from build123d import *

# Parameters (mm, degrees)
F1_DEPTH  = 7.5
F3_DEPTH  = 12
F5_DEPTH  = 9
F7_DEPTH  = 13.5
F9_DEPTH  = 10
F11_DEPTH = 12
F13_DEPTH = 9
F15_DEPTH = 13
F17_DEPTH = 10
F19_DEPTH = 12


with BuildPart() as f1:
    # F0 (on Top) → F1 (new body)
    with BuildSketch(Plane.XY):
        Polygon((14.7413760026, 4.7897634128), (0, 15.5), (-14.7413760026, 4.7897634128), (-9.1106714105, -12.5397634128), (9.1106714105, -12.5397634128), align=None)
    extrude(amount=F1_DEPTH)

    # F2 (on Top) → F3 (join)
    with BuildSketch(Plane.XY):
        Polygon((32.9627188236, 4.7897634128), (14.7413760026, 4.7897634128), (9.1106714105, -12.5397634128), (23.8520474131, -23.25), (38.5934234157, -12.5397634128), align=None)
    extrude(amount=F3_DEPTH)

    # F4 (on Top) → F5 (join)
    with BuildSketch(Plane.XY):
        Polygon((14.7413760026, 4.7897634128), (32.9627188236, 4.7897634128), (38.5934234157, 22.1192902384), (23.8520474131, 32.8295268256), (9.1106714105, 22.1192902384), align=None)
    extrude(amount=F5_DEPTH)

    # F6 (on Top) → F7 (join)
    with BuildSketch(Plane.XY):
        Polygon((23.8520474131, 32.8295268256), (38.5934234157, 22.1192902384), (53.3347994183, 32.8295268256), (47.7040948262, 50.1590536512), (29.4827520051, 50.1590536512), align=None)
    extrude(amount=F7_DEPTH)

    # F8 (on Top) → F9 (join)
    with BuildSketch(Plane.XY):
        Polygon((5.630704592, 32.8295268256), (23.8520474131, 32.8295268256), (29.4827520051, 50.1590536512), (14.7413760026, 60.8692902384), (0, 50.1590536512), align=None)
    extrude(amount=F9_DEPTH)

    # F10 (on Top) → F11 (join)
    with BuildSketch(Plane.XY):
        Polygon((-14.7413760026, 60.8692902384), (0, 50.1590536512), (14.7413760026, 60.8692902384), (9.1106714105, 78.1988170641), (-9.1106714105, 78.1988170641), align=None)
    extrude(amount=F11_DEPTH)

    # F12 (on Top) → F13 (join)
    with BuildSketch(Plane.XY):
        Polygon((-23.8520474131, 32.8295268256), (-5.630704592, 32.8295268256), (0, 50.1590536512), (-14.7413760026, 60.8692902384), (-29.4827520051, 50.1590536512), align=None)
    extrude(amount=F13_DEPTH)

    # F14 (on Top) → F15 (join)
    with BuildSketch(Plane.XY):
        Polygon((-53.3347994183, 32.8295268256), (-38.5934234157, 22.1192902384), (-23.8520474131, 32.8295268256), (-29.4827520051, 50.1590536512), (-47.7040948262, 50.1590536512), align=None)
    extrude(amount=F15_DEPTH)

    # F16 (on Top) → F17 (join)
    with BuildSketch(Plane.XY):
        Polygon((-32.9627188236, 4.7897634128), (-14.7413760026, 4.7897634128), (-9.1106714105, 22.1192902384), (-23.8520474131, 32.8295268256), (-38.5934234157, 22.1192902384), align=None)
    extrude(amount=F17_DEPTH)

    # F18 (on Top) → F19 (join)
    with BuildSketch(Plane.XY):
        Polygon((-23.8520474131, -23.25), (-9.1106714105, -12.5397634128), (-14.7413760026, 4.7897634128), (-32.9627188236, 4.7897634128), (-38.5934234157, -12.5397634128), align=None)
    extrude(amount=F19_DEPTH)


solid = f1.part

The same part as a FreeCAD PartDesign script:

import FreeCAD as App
import Part
import Sketcher

V = App.Vector
Q = App.Units.Quantity

doc = App.newDocument("Part")
params = doc.addObject("Spreadsheet::Sheet", "Params")
for row, (alias, value) in enumerate([
    ("pad1_length", "7.5 mm"),
    ("pad2_length", "12 mm"),
    ("pad3_length", "9 mm"),
    ("pad4_length", "13.5 mm"),
    ("pad5_length", "10 mm"),
    ("pad6_length", "12 mm"),
    ("pad7_length", "9 mm"),
    ("pad8_length", "13 mm"),
    ("pad9_length", "10 mm"),
    ("pad10_length", "12 mm"),
], start=1):
    params.set(f"A{row}", alias)
    params.set(f"B{row}", "=" + value)
    params.setAlias(f"B{row}", alias)

body = doc.addObject("PartDesign::Body", "Body")

# Sketch on XY plane
sketch1 = body.newObject("Sketcher::SketchObject", "Sketch")
sketch1.AttachmentSupport = (doc.getObject("XY_Plane"), [""])
sketch1.MapMode = "FlatFace"
sketch1.addGeometry([
    Part.LineSegment(V(14.741376, 4.789763, 0), V(0, 15.5, 0)),  # 0
    Part.LineSegment(V(0, 15.5, 0), V(-14.741376, 4.789763, 0)),  # 1
    Part.LineSegment(V(-14.741376, 4.789763, 0), V(-9.110671, -12.539763, 0)),  # 2
    Part.LineSegment(V(-9.110671, -12.539763, 0), V(9.110671, -12.539763, 0)),  # 3
    Part.LineSegment(V(9.110671, -12.539763, 0), V(14.741376, 4.789763, 0)),  # 4
], False)
sketch1.addConstraint([
    Sketcher.Constraint("Coincident", 0, 2, 1, 1),
    Sketcher.Constraint("Coincident", 1, 2, 2, 1),
    Sketcher.Constraint("Coincident", 2, 2, 3, 1),
    Sketcher.Constraint("Coincident", 3, 2, 4, 1),
    Sketcher.Constraint("Coincident", 4, 2, 0, 1),
    Sketcher.Constraint("Horizontal", 3),
    Sketcher.Constraint("Symmetric", 1, 2, 4, 2, -2),
    Sketcher.Constraint("PointOnObject", 0, 2, -2),
    Sketcher.Constraint("Equal", 1, 2),
    Sketcher.Constraint("Equal", 2, 4),
    Sketcher.Constraint("Angle", 0, Q("144 deg")),
    Sketcher.Constraint("Angle", 2, Q("-72 deg")),
    Sketcher.Constraint("DistanceY", -1, 1, 0, 2, 15.5),
    Sketcher.Constraint("DistanceX", 3, 1, 3, 2, 18.221343),
])
pad1 = body.newObject("PartDesign::Pad", "Pad")
pad1.Profile = sketch1
pad1.setExpression("Length", "Params.pad1_length")

# Sketch on XY plane
sketch2 = body.newObject("Sketcher::SketchObject", "Sketch001")
sketch2.AttachmentSupport = (doc.getObject("XY_Plane"), [""])
sketch2.MapMode = "FlatFace"
sketch2.addGeometry([
    Part.LineSegment(V(32.962719, 4.789763, 0), V(14.741376, 4.789763, 0)),  # 0
    Part.LineSegment(V(14.741376, 4.789763, 0), V(9.110671, -12.539763, 0)),  # 1
    Part.LineSegment(V(9.110671, -12.539763, 0), V(23.852047, -23.25, 0)),  # 2
    Part.LineSegment(V(23.852047, -23.25, 0), V(38.593423, -12.539763, 0)),  # 3
    Part.LineSegment(V(38.593423, -12.539763, 0), V(32.962719, 4.789763, 0)),  # 4
], False)
sketch2.addConstraint([
    Sketcher.Constraint("Coincident", 0, 2, 1, 1),
    Sketcher.Constraint("Coincident", 1, 2, 2, 1),
    Sketcher.Constraint("Coincident", 2, 2, 3, 1),
    Sketcher.Constraint("Coincident", 3, 2, 4, 1),
    Sketcher.Constraint("Coincident", 4, 2, 0, 1),
    Sketcher.Constraint("Horizontal", 0),
    Sketcher.Constraint("Horizontal", 1, 2, 3, 2),
    Sketcher.Constraint("Equal", 1, 2),
    Sketcher.Constraint("Equal", 2, 3),
    Sketcher.Constraint("Equal", 3, 4),
    Sketcher.Constraint("Angle", 1, Q("-108 deg")),
    Sketcher.Constraint("Angle", 2, Q("-36 deg")),
    Sketcher.Constraint("DistanceY", 2, 2, -1, 1, 23.25),
    Sketcher.Constraint("DistanceX", 0, 2, 0, 1, 18.221343),
    Sketcher.Constraint("DistanceX", -1, 1, 1, 2, 9.110671),
])
pad2 = body.newObject("PartDesign::Pad", "Pad001")
pad2.Profile = sketch2
pad2.setExpression("Length", "Params.pad2_length")

# Sketch on XY plane
sketch3 = body.newObject("Sketcher::SketchObject", "Sketch002")
sketch3.AttachmentSupport = (doc.getObject("XY_Plane"), [""])
sketch3.MapMode = "FlatFace"
sketch3.addGeometry([
    Part.LineSegment(V(14.741376, 4.789763, 0), V(32.962719, 4.789763, 0)),  # 0
    Part.LineSegment(V(32.962719, 4.789763, 0), V(38.593423, 22.11929, 0)),  # 1
    Part.LineSegment(V(38.593423, 22.11929, 0), V(23.852047, 32.829527, 0)),  # 2
    Part.LineSegment(V(23.852047, 32.829527, 0), V(9.110671, 22.11929, 0)),  # 3
    Part.LineSegment(V(9.110671, 22.11929, 0), V(14.741376, 4.789763, 0)),  # 4
], False)
sketch3.addConstraint([
    Sketcher.Constraint("Coincident", 0, 2, 1, 1),
    Sketcher.Constraint("Coincident", 1, 2, 2, 1),
    Sketcher.Constraint("Coincident", 2, 2, 3, 1),
    Sketcher.Constraint("Coincident", 3, 2, 4, 1),
    Sketcher.Constraint("Coincident", 4, 2, 0, 1),
    Sketcher.Constraint("Horizontal", 0),
    Sketcher.Constraint("Horizontal", 1, 2, 3, 2),
    Sketcher.Constraint("Equal", 1, 2),
    Sketcher.Constraint("Equal", 2, 3),
    Sketcher.Constraint("Equal", 3, 4),
    Sketcher.Constraint("Angle", 1, Q("72 deg")),
    Sketcher.Constraint("Angle", 2, Q("144 deg")),
    Sketcher.Constraint("DistanceX", 0, 1, 0, 2, 18.221343),
    Sketcher.Constraint("DistanceX", -1, 1, 0, 2, 32.962719),
    Sketcher.Constraint("DistanceY", -1, 1, 1, 2, 22.11929),
])
pad3 = body.newObject("PartDesign::Pad", "Pad002")
pad3.Profile = sketch3
pad3.setExpression("Length", "Params.pad3_length")

# Sketch on XY plane
sketch4 = body.newObject("Sketcher::SketchObject", "Sketch003")
sketch4.AttachmentSupport = (doc.getObject("XY_Plane"), [""])
sketch4.MapMode = "FlatFace"
sketch4.addGeometry([
    Part.LineSegment(V(23.852047, 32.829527, 0), V(38.593423, 22.11929, 0)),  # 0
    Part.LineSegment(V(38.593423, 22.11929, 0), V(53.334799, 32.829527, 0)),  # 1
    Part.LineSegment(V(53.334799, 32.829527, 0), V(47.704095, 50.159054, 0)),  # 2
    Part.LineSegment(V(47.704095, 50.159054, 0), V(29.482752, 50.159054, 0)),  # 3
    Part.LineSegment(V(29.482752, 50.159054, 0), V(23.852047, 32.829527, 0)),  # 4
], False)
sketch4.addConstraint([
    Sketcher.Constraint("Coincident", 0, 2, 1, 1),
    Sketcher.Constraint("Coincident", 1, 2, 2, 1),
    Sketcher.Constraint("Coincident", 2, 2, 3, 1),
    Sketcher.Constraint("Coincident", 3, 2, 4, 1),
    Sketcher.Constraint("Coincident", 4, 2, 0, 1),
    Sketcher.Constraint("Horizontal", 3),
    Sketcher.Constraint("Horizontal", 1, 2, 4, 2),
    Sketcher.Constraint("Equal", 0, 1),
    Sketcher.Constraint("Equal", 1, 2),
    Sketcher.Constraint("Equal", 2, 4),
    Sketcher.Constraint("Angle", 0, Q("-36 deg")),
    Sketcher.Constraint("Angle", 2, Q("108 deg")),
    Sketcher.Constraint("DistanceX", -1, 1, 1, 2, 53.334799),
    Sketcher.Constraint("DistanceX", 3, 2, 3, 1, 18.221343),
    Sketcher.Constraint("DistanceY", -1, 1, 0, 2, 22.11929),
])
pad4 = body.newObject("PartDesign::Pad", "Pad003")
pad4.Profile = sketch4
pad4.setExpression("Length", "Params.pad4_length")

# Sketch on XY plane
sketch5 = body.newObject("Sketcher::SketchObject", "Sketch004")
sketch5.AttachmentSupport = (doc.getObject("XY_Plane"), [""])
sketch5.MapMode = "FlatFace"
sketch5.addGeometry([
    Part.LineSegment(V(5.630705, 32.829527, 0), V(23.852047, 32.829527, 0)),  # 0
    Part.LineSegment(V(23.852047, 32.829527, 0), V(29.482752, 50.159054, 0)),  # 1
    Part.LineSegment(V(29.482752, 50.159054, 0), V(14.741376, 60.86929, 0)),  # 2
    Part.LineSegment(V(14.741376, 60.86929, 0), V(0, 50.159054, 0)),  # 3
    Part.LineSegment(V(0, 50.159054, 0), V(5.630705, 32.829527, 0)),  # 4
], False)
sketch5.addConstraint([
    Sketcher.Constraint("Coincident", 0, 2, 1, 1),
    Sketcher.Constraint("Coincident", 1, 2, 2, 1),
    Sketcher.Constraint("Coincident", 2, 2, 3, 1),
    Sketcher.Constraint("Coincident", 3, 2, 4, 1),
    Sketcher.Constraint("Coincident", 4, 2, 0, 1),
    Sketcher.Constraint("Horizontal", 0),
    Sketcher.Constraint("PointOnObject", 3, 2, -2),
    Sketcher.Constraint("Horizontal", 1, 2, 3, 2),
    Sketcher.Constraint("Equal", 1, 2),
    Sketcher.Constraint("Equal", 2, 3),
    Sketcher.Constraint("Equal", 3, 4),
    Sketcher.Constraint("Angle", 1, Q("72 deg")),
    Sketcher.Constraint("Angle", 2, Q("144 deg")),
    Sketcher.Constraint("DistanceX", 0, 1, 0, 2, 18.221343),
    Sketcher.Constraint("DistanceY", -1, 1, 2, 2, 60.86929),
])
pad5 = body.newObject("PartDesign::Pad", "Pad004")
pad5.Profile = sketch5
pad5.setExpression("Length", "Params.pad5_length")

# Sketch on XY plane
sketch6 = body.newObject("Sketcher::SketchObject", "Sketch005")
sketch6.AttachmentSupport = (doc.getObject("XY_Plane"), [""])
sketch6.MapMode = "FlatFace"
sketch6.addGeometry([
    Part.LineSegment(V(-14.741376, 60.86929, 0), V(0, 50.159054, 0)),  # 0
    Part.LineSegment(V(0, 50.159054, 0), V(14.741376, 60.86929, 0)),  # 1
    Part.LineSegment(V(14.741376, 60.86929, 0), V(9.110671, 78.198817, 0)),  # 2
    Part.LineSegment(V(9.110671, 78.198817, 0), V(-9.110671, 78.198817, 0)),  # 3
    Part.LineSegment(V(-9.110671, 78.198817, 0), V(-14.741376, 60.86929, 0)),  # 4
], False)
sketch6.addConstraint([
    Sketcher.Constraint("Coincident", 0, 2, 1, 1),
    Sketcher.Constraint("Coincident", 1, 2, 2, 1),
    Sketcher.Constraint("Coincident", 2, 2, 3, 1),
    Sketcher.Constraint("Coincident", 3, 2, 4, 1),
    Sketcher.Constraint("Coincident", 4, 2, 0, 1),
    Sketcher.Constraint("Horizontal", 3),
    Sketcher.Constraint("Symmetric", 1, 2, 4, 2, -2),
    Sketcher.Constraint("PointOnObject", 0, 2, -2),
    Sketcher.Constraint("Equal", 1, 2),
    Sketcher.Constraint("Equal", 2, 4),
    Sketcher.Constraint("Angle", 0, Q("-36 deg")),
    Sketcher.Constraint("Angle", 2, Q("108 deg")),
    Sketcher.Constraint("DistanceX", 3, 2, 3, 1, 18.221343),
    Sketcher.Constraint("DistanceY", -1, 1, 1, 2, 60.86929),
])
pad6 = body.newObject("PartDesign::Pad", "Pad005")
pad6.Profile = sketch6
pad6.setExpression("Length", "Params.pad6_length")

# Sketch on XY plane
sketch7 = body.newObject("Sketcher::SketchObject", "Sketch006")
sketch7.AttachmentSupport = (doc.getObject("XY_Plane"), [""])
sketch7.MapMode = "FlatFace"
sketch7.addGeometry([
    Part.LineSegment(V(-23.852047, 32.829527, 0), V(-5.630705, 32.829527, 0)),  # 0
    Part.LineSegment(V(-5.630705, 32.829527, 0), V(0, 50.159054, 0)),  # 1
    Part.LineSegment(V(0, 50.159054, 0), V(-14.741376, 60.86929, 0)),  # 2
    Part.LineSegment(V(-14.741376, 60.86929, 0), V(-29.482752, 50.159054, 0)),  # 3
    Part.LineSegment(V(-29.482752, 50.159054, 0), V(-23.852047, 32.829527, 0)),  # 4
], False)
sketch7.addConstraint([
    Sketcher.Constraint("Coincident", 0, 2, 1, 1),
    Sketcher.Constraint("Coincident", 1, 2, 2, 1),
    Sketcher.Constraint("Coincident", 2, 2, 3, 1),
    Sketcher.Constraint("Coincident", 3, 2, 4, 1),
    Sketcher.Constraint("Coincident", 4, 2, 0, 1),
    Sketcher.Constraint("Horizontal", 0),
    Sketcher.Constraint("PointOnObject", 1, 2, -2),
    Sketcher.Constraint("Horizontal", 1, 2, 3, 2),
    Sketcher.Constraint("Equal", 1, 2),
    Sketcher.Constraint("Equal", 2, 3),
    Sketcher.Constraint("Equal", 3, 4),
    Sketcher.Constraint("Angle", 1, Q("72 deg")),
    Sketcher.Constraint("Angle", 2, Q("144 deg")),
    Sketcher.Constraint("DistanceX", 0, 1, 0, 2, 18.221343),
    Sketcher.Constraint("DistanceY", -1, 1, 2, 2, 60.86929),
])
pad7 = body.newObject("PartDesign::Pad", "Pad006")
pad7.Profile = sketch7
pad7.setExpression("Length", "Params.pad7_length")

# Sketch on XY plane
sketch8 = body.newObject("Sketcher::SketchObject", "Sketch007")
sketch8.AttachmentSupport = (doc.getObject("XY_Plane"), [""])
sketch8.MapMode = "FlatFace"
sketch8.addGeometry([
    Part.LineSegment(V(-53.334799, 32.829527, 0), V(-38.593423, 22.11929, 0)),  # 0
    Part.LineSegment(V(-38.593423, 22.11929, 0), V(-23.852047, 32.829527, 0)),  # 1
    Part.LineSegment(V(-23.852047, 32.829527, 0), V(-29.482752, 50.159054, 0)),  # 2
    Part.LineSegment(V(-29.482752, 50.159054, 0), V(-47.704095, 50.159054, 0)),  # 3
    Part.LineSegment(V(-47.704095, 50.159054, 0), V(-53.334799, 32.829527, 0)),  # 4
], False)
sketch8.addConstraint([
    Sketcher.Constraint("Coincident", 0, 2, 1, 1),
    Sketcher.Constraint("Coincident", 1, 2, 2, 1),
    Sketcher.Constraint("Coincident", 2, 2, 3, 1),
    Sketcher.Constraint("Coincident", 3, 2, 4, 1),
    Sketcher.Constraint("Coincident", 4, 2, 0, 1),
    Sketcher.Constraint("Horizontal", 3),
    Sketcher.Constraint("Horizontal", 1, 2, 4, 2),
    Sketcher.Constraint("Equal", 0, 1),
    Sketcher.Constraint("Equal", 1, 2),
    Sketcher.Constraint("Equal", 2, 4),
    Sketcher.Constraint("Angle", 0, Q("-36 deg")),
    Sketcher.Constraint("Angle", 2, Q("108 deg")),
    Sketcher.Constraint("DistanceX", 4, 2, -1, 1, 53.334799),
    Sketcher.Constraint("DistanceX", 3, 2, 3, 1, 18.221343),
    Sketcher.Constraint("DistanceY", -1, 1, 0, 2, 22.11929),
])
pad8 = body.newObject("PartDesign::Pad", "Pad007")
pad8.Profile = sketch8
pad8.setExpression("Length", "Params.pad8_length")

# Sketch on XY plane
sketch9 = body.newObject("Sketcher::SketchObject", "Sketch008")
sketch9.AttachmentSupport = (doc.getObject("XY_Plane"), [""])
sketch9.MapMode = "FlatFace"
sketch9.addGeometry([
    Part.LineSegment(V(-32.962719, 4.789763, 0), V(-14.741376, 4.789763, 0)),  # 0
    Part.LineSegment(V(-14.741376, 4.789763, 0), V(-9.110671, 22.11929, 0)),  # 1
    Part.LineSegment(V(-9.110671, 22.11929, 0), V(-23.852047, 32.829527, 0)),  # 2
    Part.LineSegment(V(-23.852047, 32.829527, 0), V(-38.593423, 22.11929, 0)),  # 3
    Part.LineSegment(V(-38.593423, 22.11929, 0), V(-32.962719, 4.789763, 0)),  # 4
], False)
sketch9.addConstraint([
    Sketcher.Constraint("Coincident", 0, 2, 1, 1),
    Sketcher.Constraint("Coincident", 1, 2, 2, 1),
    Sketcher.Constraint("Coincident", 2, 2, 3, 1),
    Sketcher.Constraint("Coincident", 3, 2, 4, 1),
    Sketcher.Constraint("Coincident", 4, 2, 0, 1),
    Sketcher.Constraint("Horizontal", 0),
    Sketcher.Constraint("Horizontal", 1, 2, 3, 2),
    Sketcher.Constraint("Equal", 1, 2),
    Sketcher.Constraint("Equal", 2, 3),
    Sketcher.Constraint("Equal", 3, 4),
    Sketcher.Constraint("Angle", 1, Q("72 deg")),
    Sketcher.Constraint("Angle", 2, Q("144 deg")),
    Sketcher.Constraint("DistanceX", 0, 1, 0, 2, 18.221343),
    Sketcher.Constraint("DistanceX", 1, 2, -1, 1, 9.110671),
    Sketcher.Constraint("DistanceY", -1, 1, 1, 2, 22.11929),
])
pad9 = body.newObject("PartDesign::Pad", "Pad008")
pad9.Profile = sketch9
pad9.setExpression("Length", "Params.pad9_length")

# Sketch on XY plane
sketch10 = body.newObject("Sketcher::SketchObject", "Sketch009")
sketch10.AttachmentSupport = (doc.getObject("XY_Plane"), [""])
sketch10.MapMode = "FlatFace"
sketch10.addGeometry([
    Part.LineSegment(V(-23.852047, -23.25, 0), V(-9.110671, -12.539763, 0)),  # 0
    Part.LineSegment(V(-9.110671, -12.539763, 0), V(-14.741376, 4.789763, 0)),  # 1
    Part.LineSegment(V(-14.741376, 4.789763, 0), V(-32.962719, 4.789763, 0)),  # 2
    Part.LineSegment(V(-32.962719, 4.789763, 0), V(-38.593423, -12.539763, 0)),  # 3
    Part.LineSegment(V(-38.593423, -12.539763, 0), V(-23.852047, -23.25, 0)),  # 4
], False)
sketch10.addConstraint([
    Sketcher.Constraint("Coincident", 0, 2, 1, 1),
    Sketcher.Constraint("Coincident", 1, 2, 2, 1),
    Sketcher.Constraint("Coincident", 2, 2, 3, 1),
    Sketcher.Constraint("Coincident", 3, 2, 4, 1),
    Sketcher.Constraint("Coincident", 4, 2, 0, 1),
    Sketcher.Constraint("Horizontal", 2),
    Sketcher.Constraint("Horizontal", 0, 2, 3, 2),
    Sketcher.Constraint("Equal", 0, 1),
    Sketcher.Constraint("Equal", 1, 3),
    Sketcher.Constraint("Equal", 3, 4),
    Sketcher.Constraint("Angle", 0, Q("36 deg")),
    Sketcher.Constraint("Angle", 1, Q("108 deg")),
    Sketcher.Constraint("DistanceY", 4, 2, -1, 1, 23.25),
    Sketcher.Constraint("DistanceX", 2, 2, 2, 1, 18.221343),
    Sketcher.Constraint("DistanceX", 0, 2, -1, 1, 9.110671),
])
pad10 = body.newObject("PartDesign::Pad", "Pad009")
pad10.Profile = sketch10
pad10.setExpression("Length", "Params.pad10_length")

doc.recompute()
